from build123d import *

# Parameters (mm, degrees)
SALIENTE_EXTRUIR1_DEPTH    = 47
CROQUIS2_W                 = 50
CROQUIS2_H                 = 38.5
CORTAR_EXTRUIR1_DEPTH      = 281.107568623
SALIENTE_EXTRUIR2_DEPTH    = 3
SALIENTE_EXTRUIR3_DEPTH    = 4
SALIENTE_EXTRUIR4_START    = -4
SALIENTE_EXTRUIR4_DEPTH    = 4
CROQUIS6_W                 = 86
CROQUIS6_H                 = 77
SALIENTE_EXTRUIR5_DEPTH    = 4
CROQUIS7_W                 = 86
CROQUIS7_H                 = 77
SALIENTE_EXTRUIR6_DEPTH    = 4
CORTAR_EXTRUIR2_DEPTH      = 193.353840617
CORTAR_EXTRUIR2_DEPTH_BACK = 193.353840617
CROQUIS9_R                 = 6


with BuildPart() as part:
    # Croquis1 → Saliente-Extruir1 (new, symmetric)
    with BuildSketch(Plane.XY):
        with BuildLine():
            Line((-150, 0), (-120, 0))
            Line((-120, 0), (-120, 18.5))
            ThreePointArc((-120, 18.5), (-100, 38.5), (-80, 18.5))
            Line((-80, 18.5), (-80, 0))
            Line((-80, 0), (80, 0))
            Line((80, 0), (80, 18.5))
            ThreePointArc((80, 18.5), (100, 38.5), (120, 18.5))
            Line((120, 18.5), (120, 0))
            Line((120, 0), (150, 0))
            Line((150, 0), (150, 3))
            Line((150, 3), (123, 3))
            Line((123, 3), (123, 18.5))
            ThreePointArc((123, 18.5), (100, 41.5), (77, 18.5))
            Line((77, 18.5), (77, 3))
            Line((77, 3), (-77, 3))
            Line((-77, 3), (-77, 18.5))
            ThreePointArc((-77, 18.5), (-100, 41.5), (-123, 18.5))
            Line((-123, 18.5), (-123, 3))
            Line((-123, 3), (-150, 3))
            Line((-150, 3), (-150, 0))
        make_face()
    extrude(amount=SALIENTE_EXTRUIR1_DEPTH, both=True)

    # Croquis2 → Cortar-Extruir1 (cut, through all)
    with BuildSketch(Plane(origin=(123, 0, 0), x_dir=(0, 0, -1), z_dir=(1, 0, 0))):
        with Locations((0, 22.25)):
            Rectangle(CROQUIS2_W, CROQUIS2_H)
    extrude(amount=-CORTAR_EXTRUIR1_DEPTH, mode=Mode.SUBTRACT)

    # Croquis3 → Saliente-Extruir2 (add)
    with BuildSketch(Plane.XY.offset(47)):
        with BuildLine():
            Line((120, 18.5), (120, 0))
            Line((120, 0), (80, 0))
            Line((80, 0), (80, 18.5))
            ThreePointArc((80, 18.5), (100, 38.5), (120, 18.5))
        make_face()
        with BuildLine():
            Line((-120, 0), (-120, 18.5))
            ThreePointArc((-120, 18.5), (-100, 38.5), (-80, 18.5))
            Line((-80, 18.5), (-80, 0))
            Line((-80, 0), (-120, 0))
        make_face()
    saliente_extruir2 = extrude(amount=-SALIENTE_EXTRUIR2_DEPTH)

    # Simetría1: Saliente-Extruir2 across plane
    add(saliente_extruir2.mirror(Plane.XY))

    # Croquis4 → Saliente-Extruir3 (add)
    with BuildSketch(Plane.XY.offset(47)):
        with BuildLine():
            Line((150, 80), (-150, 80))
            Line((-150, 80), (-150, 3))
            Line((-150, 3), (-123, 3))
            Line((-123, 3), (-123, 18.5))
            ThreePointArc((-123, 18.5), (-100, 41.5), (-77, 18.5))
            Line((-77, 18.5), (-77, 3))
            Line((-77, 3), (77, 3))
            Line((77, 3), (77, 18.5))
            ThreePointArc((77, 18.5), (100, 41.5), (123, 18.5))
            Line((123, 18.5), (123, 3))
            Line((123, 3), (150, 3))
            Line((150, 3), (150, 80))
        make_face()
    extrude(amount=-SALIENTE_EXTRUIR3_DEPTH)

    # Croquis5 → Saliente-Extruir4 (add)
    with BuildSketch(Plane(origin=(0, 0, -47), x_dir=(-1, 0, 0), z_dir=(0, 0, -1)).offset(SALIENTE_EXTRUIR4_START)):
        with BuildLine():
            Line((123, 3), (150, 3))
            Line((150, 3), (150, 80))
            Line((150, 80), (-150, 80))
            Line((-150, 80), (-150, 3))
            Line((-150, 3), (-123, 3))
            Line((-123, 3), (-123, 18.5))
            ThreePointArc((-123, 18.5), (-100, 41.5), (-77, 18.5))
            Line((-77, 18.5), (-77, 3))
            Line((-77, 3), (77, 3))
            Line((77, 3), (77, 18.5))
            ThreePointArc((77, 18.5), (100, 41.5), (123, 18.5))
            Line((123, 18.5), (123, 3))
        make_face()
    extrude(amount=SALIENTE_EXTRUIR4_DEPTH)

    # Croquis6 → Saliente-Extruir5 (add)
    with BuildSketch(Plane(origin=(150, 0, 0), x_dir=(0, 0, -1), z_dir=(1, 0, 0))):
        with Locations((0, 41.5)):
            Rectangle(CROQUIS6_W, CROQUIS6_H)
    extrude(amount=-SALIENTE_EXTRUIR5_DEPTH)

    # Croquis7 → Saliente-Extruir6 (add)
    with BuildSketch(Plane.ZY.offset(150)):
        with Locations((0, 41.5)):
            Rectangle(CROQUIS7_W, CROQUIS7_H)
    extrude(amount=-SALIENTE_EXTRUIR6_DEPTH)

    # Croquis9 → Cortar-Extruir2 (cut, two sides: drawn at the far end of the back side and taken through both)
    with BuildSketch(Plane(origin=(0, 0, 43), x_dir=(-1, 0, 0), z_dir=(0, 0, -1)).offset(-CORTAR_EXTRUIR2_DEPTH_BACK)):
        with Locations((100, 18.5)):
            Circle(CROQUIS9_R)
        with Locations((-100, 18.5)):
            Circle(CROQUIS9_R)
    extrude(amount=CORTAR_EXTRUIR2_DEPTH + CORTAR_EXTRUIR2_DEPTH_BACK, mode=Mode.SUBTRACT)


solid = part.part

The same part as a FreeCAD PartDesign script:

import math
import FreeCAD as App
import Part
import Sketcher
from FreeCAD import Vector
Q = App.Units.Quantity


def add_polygon(sketch, points):
    """Adds a closed chain of lines whose ends are joined by coincident constraints."""
    first, n = sketch.GeometryCount, len(points)
    for a, b in zip(points, points[1:] + points[:1]):
        sketch.addGeometry(Part.LineSegment(App.Vector(*a, 0), App.Vector(*b, 0)), False)
    for i in range(n):
        sketch.addConstraint(Sketcher.Constraint("Coincident", first + i, 2, first + (i + 1) % n, 1))

doc = App.newDocument("Part")
body = doc.addObject("PartDesign::Body", "Body")

# Sketch on XY plane
sketch1 = body.newObject("Sketcher::SketchObject", "Sketch")
sketch1.AttachmentSupport = (doc.getObject("XY_Plane"), [""])
sketch1.MapMode = "FlatFace"
sketch1.addGeometry([
    Part.LineSegment(Vector(-150, 0, 0), Vector(-120, 0, 0)),  # 0
    Part.LineSegment(Vector(-120, 0, 0), Vector(-120, 18.5, 0)),  # 1
    Part.ArcOfCircle(Part.Circle(Vector(-100, 18.5, 0), Vector(0, 0, 1), 20), math.radians(0), math.radians(180)),  # 2
    Part.LineSegment(Vector(-80, 18.5, 0), Vector(-80, 0, 0)),  # 3
    Part.LineSegment(Vector(-80, 0, 0), Vector(80, 0, 0)),  # 4
    Part.LineSegment(Vector(80, 0, 0), Vector(80, 18.5, 0)),  # 5
    Part.ArcOfCircle(Part.Circle(Vector(100, 18.5, 0), Vector(0, 0, 1), 20), math.radians(0), math.radians(180)),  # 6
    Part.LineSegment(Vector(120, 18.5, 0), Vector(120, 0, 0)),  # 7
    Part.LineSegment(Vector(120, 0, 0), Vector(150, 0, 0)),  # 8
    Part.LineSegment(Vector(150, 0, 0), Vector(150, 3, 0)),  # 9
    Part.LineSegment(Vector(150, 3, 0), Vector(123, 3, 0)),  # 10
    Part.LineSegment(Vector(123, 3, 0), Vector(123, 18.5, 0)),  # 11
    Part.ArcOfCircle(Part.Circle(Vector(100, 18.5, 0), Vector(0, 0, 1), 23), math.radians(0), math.radians(180)),  # 12
    Part.LineSegment(Vector(77, 18.5, 0), Vector(77, 3, 0)),  # 13
    Part.LineSegment(Vector(77, 3, 0), Vector(-77, 3, 0)),  # 14
    Part.LineSegment(Vector(-77, 3, 0), Vector(-77, 18.5, 0)),  # 15
    Part.ArcOfCircle(Part.Circle(Vector(-100, 18.5, 0), Vector(0, 0, 1), 23), math.radians(0), math.radians(180)),  # 16
    Part.LineSegment(Vector(-123, 18.5, 0), Vector(-123, 3, 0)),  # 17
    Part.LineSegment(Vector(-123, 3, 0), Vector(-150, 3, 0)),  # 18
    Part.LineSegment(Vector(-150, 3, 0), Vector(-150, 0, 0)),  # 19
], False)
sketch1.addConstraint([
    Sketcher.Constraint("Coincident", 0, 2, 1, 1),
    Sketcher.Constraint("Tangent", 1, 2, 2, 2),
    Sketcher.Constraint("Tangent", 2, 1, 3, 1),
    Sketcher.Constraint("Coincident", 3, 2, 4, 1),
    Sketcher.Constraint("Coincident", 4, 2, 5, 1),
    Sketcher.Constraint("Tangent", 5, 2, 6, 2),
    Sketcher.Constraint("Tangent", 6, 1, 7, 1),
    Sketcher.Constraint("Coincident", 7, 2, 8, 1),
    Sketcher.Constraint("Coincident", 8, 2, 9, 1),
    Sketcher.Constraint("Coincident", 9, 2, 10, 1),
    Sketcher.Constraint("Coincident", 10, 2, 11, 1),
    Sketcher.Constraint("Tangent", 11, 2, 12, 1),
    Sketcher.Constraint("Tangent", 12, 2, 13, 1),
    Sketcher.Constraint("Coincident", 13, 2, 14, 1),
    Sketcher.Constraint("Coincident", 14, 2, 15, 1),
    Sketcher.Constraint("Tangent", 15, 2, 16, 1),
    Sketcher.Constraint("Tangent", 16, 2, 17, 1),
    Sketcher.Constraint("Coincident", 17, 2, 18, 1),
    Sketcher.Constraint("Coincident", 18, 2, 19, 1),
    Sketcher.Constraint("Coincident", 19, 2, 0, 1),
    Sketcher.Constraint("Horizontal", 0),
    Sketcher.Constraint("Vertical", 1),
    Sketcher.Constraint("Vertical", 3),
    Sketcher.Constraint("Horizontal", 4),
    Sketcher.Constraint("Vertical", 5),
    Sketcher.Constraint("Vertical", 7),
    Sketcher.Constraint("Horizontal", 8),
    Sketcher.Constraint("Vertical", 9),
    Sketcher.Constraint("Horizontal", 10),
    Sketcher.Constraint("Vertical", 11),
    Sketcher.Constraint("Vertical", 13),
    Sketcher.Constraint("Horizontal", 14),
    Sketcher.Constraint("Vertical", 15),
    Sketcher.Constraint("Vertical", 17),
    Sketcher.Constraint("Horizontal", 18),
    Sketcher.Constraint("Vertical", 19),
    Sketcher.Constraint("Coincident", 12, 3, 6, 3),
    Sketcher.Constraint("Coincident", 16, 3, 2, 3),
    Sketcher.Constraint("Equal", 2, 6),
    Sketcher.Constraint("Equal", 12, 16),
    Sketcher.Constraint("Symmetric", 3, 2, 4, 2, -1, 1),
    Sketcher.Constraint("Symmetric", 8, 2, 19, 2, -1, 1),
    Sketcher.Constraint("PointOnObject", 0, 2, -1),
    Sketcher.Constraint("Horizontal", 2, 3, 6, 3),
    Sketcher.Constraint("Horizontal", 10, 2, 13, 2),
    Sketcher.Constraint("Horizontal", 14, 2, 17, 2),
    Sketcher.Constraint("Radius", 2, Q("20 mm")),
    Sketcher.Constraint("Radius", 12, Q("23 mm")),
    Sketcher.Constraint("DistanceX", 0, 1, 0, 2, Q("30 mm")),
    Sketcher.Constraint("DistanceX", 4, 1, 4, 2, Q("160 mm")),
    Sketcher.Constraint("DistanceY", 9, 1, 9, 2, Q("3 mm")),
    Sketcher.Constraint("DistanceY", 1, 1, 1, 2, Q("18.5 mm")),
])
pad1 = body.newObject("PartDesign::Pad", "Pad")
pad1.Profile = sketch1
pad1.Length = 94
pad1.Midplane = True

# Sketch on YZ plane
sketch2 = body.newObject("Sketcher::SketchObject", "Sketch001")
sketch2.AttachmentSupport = (doc.getObject("YZ_Plane"), [""])
sketch2.MapMode = "FlatFace"
sketch2.AttachmentOffset = App.Placement(Vector(0, 0, 123), App.Rotation())
add_polygon(sketch2, [(42, 25), (3, 25), (3, -25), (42, -25)])  # lines 0-3
sketch2.addConstraint([
    Sketcher.Constraint("Horizontal", 0),
    Sketcher.Constraint("Vertical", 1),
    Sketcher.Constraint("Horizontal", 2),
    Sketcher.Constraint("Vertical", 3),
    Sketcher.Constraint("DistanceY", 1, 2, 1, 1, Q("50 mm")),
    Sketcher.Constraint("DistanceX", 0, 2, 0, 1, Q("38.5 mm")),
    Sketcher.Constraint("DistanceX", -1, 1, 0, 2, Q("3 mm")),
    Sketcher.Constraint("DistanceY", -1, 1, 0, 2, Q("25 mm")),
])
pocket1 = body.newObject("PartDesign::Pocket", "Pocket")
pocket1.Profile = sketch2
pocket1.Type = "ThroughAll"

# Sketch on XY plane
sketch3 = body.newObject("Sketcher::SketchObject", "Sketch002")
sketch3.AttachmentSupport = (doc.getObject("XY_Plane"), [""])
sketch3.MapMode = "FlatFace"
sketch3.AttachmentOffset = App.Placement(Vector(0, 0, 47), App.Rotation())
sketch3.addGeometry([
    Part.LineSegment(Vector(120, 0, 0), Vector(120, 18, 0)),  # 0
    Part.ArcOfCircle(Part.Circle(Vector(100, 18, 0), Vector(0, 0, 1), 20), math.radians(0), math.radians(180)),  # 1
    Part.LineSegment(Vector(80, 18, 0), Vector(80, 0, 0)),  # 2
    Part.LineSegment(Vector(80, 0, 0), Vector(120, 0, 0)),  # 3
    Part.LineSegment(Vector(-120, 18, 0), Vector(-120, 0, 0)),  # 4
    Part.LineSegment(Vector(-120, 0, 0), Vector(-80, 0, 0)),  # 5
    Part.LineSegment(Vector(-80, 0, 0), Vector(-80, 18, 0)),  # 6
    Part.ArcOfCircle(Part.Circle(Vector(-100, 18, 0), Vector(0, 0, 1), 20), math.radians(0), math.radians(180)),  # 7
], False)
sketch3.addConstraint([
    Sketcher.Constraint("Tangent", 0, 2, 1, 1),
    Sketcher.Constraint("Tangent", 1, 2, 2, 1),
    Sketcher.Constraint("Coincident", 2, 2, 3, 1),
    Sketcher.Constraint("Coincident", 3, 2, 0, 1),
    Sketcher.Constraint("Coincident", 4, 2, 5, 1),
    Sketcher.Constraint("Coincident", 5, 2, 6, 1),
    Sketcher.Constraint("Tangent", 6, 2, 7, 1),
    Sketcher.Constraint("Tangent", 7, 2, 4, 1),
    Sketcher.Constraint("Vertical", 0),
    Sketcher.Constraint("Vertical", 2),
    Sketcher.Constraint("Horizontal", 3),
    Sketcher.Constraint("Vertical", 4),
    Sketcher.Constraint("Horizontal", 5),
    Sketcher.Constraint("Vertical", 6),
    Sketcher.Constraint("Equal", 1, 7),
    Sketcher.Constraint("Symmetric", 3, 2, 4, 2, -1, 1),
    Sketcher.Constraint("PointOnObject", 2, 2, -1),
    Sketcher.Constraint("Horizontal", 1, 3, 7, 3),
    Sketcher.Constraint("Radius", 1, Q("20 mm")),
    Sketcher.Constraint("DistanceY", 0, 1, 0, 2, Q("18.5 mm")),
    Sketcher.Constraint("DistanceX", -1, 1, 1, 3, Q("100 mm")),
])
pad2 = body.newObject("PartDesign::Pad", "Pad001")
pad2.Profile = sketch3
pad2.Length = 3
pad2.Reversed = True
doc.recompute()

mirrored = body.newObject("PartDesign::Mirrored", "Mirrored")
mirrored.Originals = [pad2]
mirrored.MirrorPlane = (doc.getObject("XY_Plane"), [""])
body.Tip = mirrored

# Sketch on XY plane
sketch4 = body.newObject("Sketcher::SketchObject", "Sketch003")
sketch4.AttachmentSupport = (doc.getObject("XY_Plane"), [""])
sketch4.MapMode = "FlatFace"
sketch4.AttachmentOffset = App.Placement(Vector(0, 0, 47), App.Rotation())
sketch4.addGeometry([
    Part.LineSegment(Vector(150, 80, 0), Vector(-150, 80, 0)),  # 0
    Part.LineSegment(Vector(-150, 80, 0), Vector(-150, 3, 0)),  # 1
    Part.LineSegment(Vector(-150, 3, 0), Vector(-123, 3, 0)),  # 2
    Part.LineSegment(Vector(-123, 3, 0), Vector(-123, 18, 0)),  # 3
    Part.ArcOfCircle(Part.Circle(Vector(-100, 18, 0), Vector(0, 0, 1), 23), math.radians(0), math.radians(180)),  # 4
    Part.LineSegment(Vector(-77, 18, 0), Vector(-77, 3, 0)),  # 5
    Part.LineSegment(Vector(-77, 3, 0), Vector(77, 3, 0)),  # 6
    Part.LineSegment(Vector(77, 3, 0), Vector(77, 18, 0)),  # 7
    Part.ArcOfCircle(Part.Circle(Vector(100, 18, 0), Vector(0, 0, 1), 23), math.radians(0), math.radians(180)),  # 8
    Part.LineSegment(Vector(123, 18, 0), Vector(123, 3, 0)),  # 9
    Part.LineSegment(Vector(123, 3, 0), Vector(150, 3, 0)),  # 10
    Part.LineSegment(Vector(150, 3, 0), Vector(150, 80, 0)),  # 11
], False)
sketch4.addConstraint([
    Sketcher.Constraint("Coincident", 0, 2, 1, 1),
    Sketcher.Constraint("Coincident", 1, 2, 2, 1),
    Sketcher.Constraint("Coincident", 2, 2, 3, 1),
    Sketcher.Constraint("Tangent", 3, 2, 4, 2),
    Sketcher.Constraint("Tangent", 4, 1, 5, 1),
    Sketcher.Constraint("Coincident", 5, 2, 6, 1),
    Sketcher.Constraint("Coincident", 6, 2, 7, 1),
    Sketcher.Constraint("Tangent", 7, 2, 8, 2),
    Sketcher.Constraint("Tangent", 8, 1, 9, 1),
    Sketcher.Constraint("Coincident", 9, 2, 10, 1),
    Sketcher.Constraint("Coincident", 10, 2, 11, 1),
    Sketcher.Constraint("Coincident", 11, 2, 0, 1),
    Sketcher.Constraint("Horizontal", 0),
    Sketcher.Constraint("Vertical", 1),
    Sketcher.Constraint("Horizontal", 2),
    Sketcher.Constraint("Vertical", 3),
    Sketcher.Constraint("Vertical", 5),
    Sketcher.Constraint("Horizontal", 6),
    Sketcher.Constraint("Vertical", 7),
    Sketcher.Constraint("Vertical", 9),
    Sketcher.Constraint("Horizontal", 10),
    Sketcher.Constraint("Vertical", 11),
    Sketcher.Constraint("Equal", 4, 8),
    Sketcher.Constraint("Symmetric", 4, 3, 8, 3, -2),
    Sketcher.Constraint("Symmetric", 1, 2, 10, 2, -2),
    Sketcher.Constraint("Horizontal", 2, 2, 5, 2),
    Sketcher.Constraint("Radius", 4, Q("23 mm")),
    Sketcher.Constraint("DistanceX", 0, 2, 0, 1, Q("300 mm")),
    Sketcher.Constraint("DistanceX", 2, 1, 2, 2, Q("27 mm")),
    Sketcher.Constraint("DistanceY", 1, 2, 1, 1, Q("77 mm")),
    Sketcher.Constraint("DistanceY", 3, 1, 3, 2, Q("15.5 mm")),
    Sketcher.Constraint("DistanceY", -1, 1, 0, 2, Q("80 mm")),
])
pad3 = body.newObject("PartDesign::Pad", "Pad002")
pad3.Profile = sketch4
pad3.Length = 4
pad3.Reversed = True

# Sketch on XY plane
sketch5 = body.newObject("Sketcher::SketchObject", "Sketch004")
sketch5.AttachmentSupport = (doc.getObject("XY_Plane"), [""])
sketch5.MapMode = "FlatFace"
sketch5.AttachmentOffset = App.Placement(Vector(0, 0, -43), App.Rotation())
sketch5.addGeometry([
    Part.LineSegment(Vector(-123, 3, 0), Vector(-150, 3, 0)),  # 0
    Part.LineSegment(Vector(-150, 3, 0), Vector(-150, 80, 0)),  # 1
    Part.LineSegment(Vector(-150, 80, 0), Vector(150, 80, 0)),  # 2
    Part.LineSegment(Vector(150, 80, 0), Vector(150, 3, 0)),  # 3
    Part.LineSegment(Vector(150, 3, 0), Vector(123, 3, 0)),  # 4
    Part.LineSegment(Vector(123, 3, 0), Vector(123, 18, 0)),  # 5
    Part.ArcOfCircle(Part.Circle(Vector(100, 18, 0), Vector(0, 0, 1), 23), math.radians(0), math.radians(180)),  # 6
    Part.LineSegment(Vector(77, 18, 0), Vector(77, 3, 0)),  # 7
    Part.LineSegment(Vector(77, 3, 0), Vector(-77, 3, 0)),  # 8
    Part.LineSegment(Vector(-77, 3, 0), Vector(-77, 18, 0)),  # 9
    Part.ArcOfCircle(Part.Circle(Vector(-100, 18, 0), Vector(0, 0, 1), 23), math.radians(0), math.radians(180)),  # 10
    Part.LineSegment(Vector(-123, 18, 0), Vector(-123, 3, 0)),  # 11
], False)
sketch5.addConstraint([
    Sketcher.Constraint("Coincident", 0, 2, 1, 1),
    Sketcher.Constraint("Coincident", 1, 2, 2, 1),
    Sketcher.Constraint("Coincident", 2, 2, 3, 1),
    Sketcher.Constraint("Coincident", 3, 2, 4, 1),
    Sketcher.Constraint("Coincident", 4, 2, 5, 1),
    Sketcher.Constraint("Tangent", 5, 2, 6, 1),
    Sketcher.Constraint("Tangent", 6, 2, 7, 1),
    Sketcher.Constraint("Coincident", 7, 2, 8, 1),
    Sketcher.Constraint("Coincident", 8, 2, 9, 1),
    Sketcher.Constraint("Tangent", 9, 2, 10, 1),
    Sketcher.Constraint("Tangent", 10, 2, 11, 1),
    Sketcher.Constraint("Coincident", 11, 2, 0, 1),
    Sketcher.Constraint("Horizontal", 0),
    Sketcher.Constraint("Vertical", 1),
    Sketcher.Constraint("Horizontal", 2),
    Sketcher.Constraint("Vertical", 3),
    Sketcher.Constraint("Horizontal", 4),
    Sketcher.Constraint("Vertical", 5),
    Sketcher.Constraint("Vertical", 7),
    Sketcher.Constraint("Horizontal", 8),
    Sketcher.Constraint("Vertical", 9),
    Sketcher.Constraint("Vertical", 11),
    Sketcher.Constraint("Equal", 6, 10),
    Sketcher.Constraint("Symmetric", 6, 3, 10, 3, -2),
    Sketcher.Constraint("Symmetric", 0, 2, 3, 2, -2),
    Sketcher.Constraint("Horizontal", 4, 2, 7, 2),
    Sketcher.Constraint("Radius", 6, Q("23 mm")),
    Sketcher.Constraint("DistanceX", 0, 2, 0, 1, Q("27 mm")),
    Sketcher.Constraint("DistanceX", 2, 1, 2, 2, Q("300 mm")),
    Sketcher.Constraint("DistanceY", 1, 1, 1, 2, Q("77 mm")),
    Sketcher.Constraint("DistanceY", 5, 1, 5, 2, Q("15.5 mm")),
    Sketcher.Constraint("DistanceY", -1, 1, 0, 2, Q("3 mm")),
])
pad4 = body.newObject("PartDesign::Pad", "Pad003")
pad4.Profile = sketch5
pad4.Length = 4
pad4.Reversed = True

# Sketch on YZ plane
sketch6 = body.newObject("Sketcher::SketchObject", "Sketch005")
sketch6.AttachmentSupport = (doc.getObject("YZ_Plane"), [""])
sketch6.MapMode = "FlatFace"
sketch6.AttachmentOffset = App.Placement(Vector(0, 0, 150), App.Rotation())
add_polygon(sketch6, [(80, 43), (3, 43), (3, -43), (80, -43)])  # lines 0-3
sketch6.addConstraint([
    Sketcher.Constraint("Horizontal", 0),
    Sketcher.Constraint("Vertical", 1),
    Sketcher.Constraint("Horizontal", 2),
    Sketcher.Constraint("Vertical", 3),
    Sketcher.Constraint("DistanceX", 0, 2, 0, 1, Q("77 mm")),
    Sketcher.Constraint("DistanceY", 1, 2, 1, 1, Q("86 mm")),
    Sketcher.Constraint("DistanceX", -1, 1, 0, 2, Q("3 mm")),
    Sketcher.Constraint("DistanceY", -1, 1, 0, 2, Q("43 mm")),
])
pad5 = body.newObject("PartDesign::Pad", "Pad004")
pad5.Profile = sketch6
pad5.Length = 4
pad5.Reversed = True

# Sketch on YZ plane
sketch7 = body.newObject("Sketcher::SketchObject", "Sketch006")
sketch7.AttachmentSupport = (doc.getObject("YZ_Plane"), [""])
sketch7.MapMode = "FlatFace"
sketch7.AttachmentOffset = App.Placement(Vector(0, 0, -150), App.Rotation())
add_polygon(sketch7, [(80, -43), (3, -43), (3, 43), (80, 43)])  # lines 0-3
sketch7.addConstraint([
    Sketcher.Constraint("Horizontal", 0),
    Sketcher.Constraint("Vertical", 1),
    Sketcher.Constraint("Horizontal", 2),
    Sketcher.Constraint("Vertical", 3),
    Sketcher.Constraint("DistanceX", 0, 2, 0, 1, Q("77 mm")),
    Sketcher.Constraint("DistanceY", 1, 1, 1, 2, Q("86 mm")),
    Sketcher.Constraint("DistanceX", -1, 1, 0, 2, Q("3 mm")),
    Sketcher.Constraint("DistanceY", 0, 2, -1, 1, Q("43 mm")),
])
pad6 = body.newObject("PartDesign::Pad", "Pad005")
pad6.Profile = sketch7
pad6.Length = 4

# Sketch on XY plane
sketch8 = body.newObject("Sketcher::SketchObject", "Sketch007")
sketch8.AttachmentSupport = (doc.getObject("XY_Plane"), [""])
sketch8.MapMode = "FlatFace"
sketch8.AttachmentOffset = App.Placement(Vector(0, 0, 43), App.Rotation())
sketch8.addGeometry([
    Part.Circle(Vector(-100, 18, 0), Vector(0, 0, 1), 6),
    Part.Circle(Vector(100, 18, 0), Vector(0, 0, 1), 6),
], False)
sketch8.addConstraint([
    Sketcher.Constraint("Equal", 0, 1),
    Sketcher.Constraint("Symmetric", 0, 3, 1, 3, -2),
    Sketcher.Constraint("Diameter", 0, Q("12 mm")),
    Sketcher.Constraint("DistanceX", 0, 3, -1, 1, Q("100 mm")),
    Sketcher.Constraint("DistanceY", -1, 1, 0, 3, Q("18.5 mm")),
])
pocket2 = body.newObject("PartDesign::Pocket", "Pocket001")
pocket2.Profile = sketch8
pocket2.Type = "ThroughAll"
pocket2.Midplane = True

doc.recompute()
